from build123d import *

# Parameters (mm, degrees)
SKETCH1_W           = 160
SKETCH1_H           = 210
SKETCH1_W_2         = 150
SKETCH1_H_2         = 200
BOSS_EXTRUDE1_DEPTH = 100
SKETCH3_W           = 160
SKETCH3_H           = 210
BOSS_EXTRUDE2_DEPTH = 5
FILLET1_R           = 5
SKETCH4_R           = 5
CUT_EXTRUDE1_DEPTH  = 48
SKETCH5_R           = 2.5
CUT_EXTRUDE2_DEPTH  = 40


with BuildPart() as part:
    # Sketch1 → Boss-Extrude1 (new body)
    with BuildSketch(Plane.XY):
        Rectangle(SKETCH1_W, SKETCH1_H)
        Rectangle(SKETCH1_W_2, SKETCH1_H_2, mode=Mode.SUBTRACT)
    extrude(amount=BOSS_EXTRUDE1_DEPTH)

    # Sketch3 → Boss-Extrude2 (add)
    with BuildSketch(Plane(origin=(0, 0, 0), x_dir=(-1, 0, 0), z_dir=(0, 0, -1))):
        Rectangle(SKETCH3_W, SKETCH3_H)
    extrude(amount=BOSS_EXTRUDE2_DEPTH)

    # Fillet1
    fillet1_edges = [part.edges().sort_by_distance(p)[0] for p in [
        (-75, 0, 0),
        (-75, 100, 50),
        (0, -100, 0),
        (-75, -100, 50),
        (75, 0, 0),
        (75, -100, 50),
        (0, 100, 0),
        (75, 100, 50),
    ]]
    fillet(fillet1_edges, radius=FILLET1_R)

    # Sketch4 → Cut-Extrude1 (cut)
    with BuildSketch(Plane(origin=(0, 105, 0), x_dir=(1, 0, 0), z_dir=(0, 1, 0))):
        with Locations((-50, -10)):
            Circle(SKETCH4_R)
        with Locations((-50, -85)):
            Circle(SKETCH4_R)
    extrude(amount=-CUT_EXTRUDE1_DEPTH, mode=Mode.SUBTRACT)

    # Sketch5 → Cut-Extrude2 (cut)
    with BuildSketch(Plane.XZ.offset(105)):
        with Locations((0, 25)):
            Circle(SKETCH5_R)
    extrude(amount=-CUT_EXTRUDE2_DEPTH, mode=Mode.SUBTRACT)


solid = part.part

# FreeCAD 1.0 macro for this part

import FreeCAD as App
import Part
import Sketcher
from FreeCAD import Vector
Q = App.Units.Quantity


def edges_at(feature, points):
    """Names of the edges that pass closest to the given points."""
    edges = feature.Shape.Edges
    near = lambda p: min(range(len(edges)), key=lambda i: edges[i].distToShape(Part.Vertex(*p))[0])
    return sorted({f"Edge{near(p) + 1}" for p in points})


def add_polygon(sketch, points):
    """Adds a closed chain of lines whose ends are joined by coincident constraints."""
    first, n = sketch.GeometryCount, len(points)
    for a, b in zip(points, points[1:] + points[:1]):
        sketch.addGeometry(Part.LineSegment(App.Vector(*a, 0), App.Vector(*b, 0)), False)
    for i in range(n):
        sketch.addConstraint(Sketcher.Constraint("Coincident", first + i, 2, first + (i + 1) % n, 1))

doc = App.newDocument("Part")
body = doc.addObject("PartDesign::Body", "Body")

# Sketch on XY plane
sketch1 = body.newObject("Sketcher::SketchObject", "Sketch")
sketch1.AttachmentSupport = (doc.getObject("XY_Plane"), [""])
sketch1.MapMode = "FlatFace"
add_polygon(sketch1, [(-80, 105), (-80, -105), (80, -105), (80, 105)])  # lines 0-3
add_polygon(sketch1, [(75, -100), (-75, -100), (-75, 100), (75, 100)])  # lines 4-7
sketch1.addConstraint([
    Sketcher.Constraint("Vertical", 0),
    Sketcher.Constraint("Horizontal", 1),
    Sketcher.Constraint("Vertical", 2),
    Sketcher.Constraint("Horizontal", 3),
    Sketcher.Constraint("Horizontal", 4),
    Sketcher.Constraint("Vertical", 5),
    Sketcher.Constraint("Horizontal", 6),
    Sketcher.Constraint("Vertical", 7),
    Sketcher.Constraint("Symmetric", 0, 2, 2, 2, -1, 1),
    Sketcher.Constraint("Symmetric", 4, 2, 6, 2, -1, 1),
    Sketcher.Constraint("DistanceX", 1, 1, 1, 2, Q("160 mm")),
    Sketcher.Constraint("DistanceX", 4, 2, 4, 1, Q("150 mm")),
    Sketcher.Constraint("DistanceY", 0, 2, 0, 1, Q("210 mm")),
    Sketcher.Constraint("DistanceY", 5, 1, 5, 2, Q("200 mm")),
])
pad1 = body.newObject("PartDesign::Pad", "Pad")
pad1.Profile = sketch1
pad1.Length = 100

# Sketch on XY plane
sketch2 = body.newObject("Sketcher::SketchObject", "Sketch001")
sketch2.AttachmentSupport = (doc.getObject("XY_Plane"), [""])
sketch2.MapMode = "FlatFace"
add_polygon(sketch2, [(80, 105), (80, -105), (-80, -105), (-80, 105)])  # lines 0-3
sketch2.addConstraint([
    Sketcher.Constraint("Vertical", 0),
    Sketcher.Constraint("Horizontal", 1),
    Sketcher.Constraint("Vertical", 2),
    Sketcher.Constraint("Horizontal", 3),
    Sketcher.Constraint("Symmetric", 0, 2, 2, 2, -1, 1),
    Sketcher.Constraint("DistanceX", 1, 2, 1, 1, Q("160 mm")),
    Sketcher.Constraint("DistanceY", 0, 2, 0, 1, Q("210 mm")),
])
pad2 = body.newObject("PartDesign::Pad", "Pad001")
pad2.Profile = sketch2
pad2.Length = 5
pad2.Reversed = True
doc.recompute()

fillet = body.newObject("PartDesign::Fillet", "Fillet")
fillet.Base = (pad2, edges_at(pad2, [
    (-75, 0, 0),
    (-75, 100, 50),
    (0, -100, 0),
    (-75, -100, 50),
    (75, 0, 0),
    (75, -100, 50),
    (0, 100, 0),
    (75, 100, 50),
]))
fillet.Radius = 5

# Sketch on XZ plane
sketch3 = body.newObject("Sketcher::SketchObject", "Sketch002")
sketch3.AttachmentSupport = (doc.getObject("XZ_Plane"), [""])
sketch3.MapMode = "FlatFace"
sketch3.AttachmentOffset = App.Placement(Vector(0, 0, -105), App.Rotation())
sketch3.addGeometry([
    Part.Circle(Vector(-50, 10, 0), Vector(0, 0, 1), 5),
    Part.Circle(Vector(-50, 85, 0), Vector(0, 0, 1), 5),
], False)
sketch3.addConstraint([
    Sketcher.Constraint("Equal", 0, 1),
    Sketcher.Constraint("Vertical", 0, 3, 1, 3),
    Sketcher.Constraint("Diameter", 0, Q("10 mm")),
    Sketcher.Constraint("DistanceX", 0, 3, -1, 1, Q("50 mm")),
    Sketcher.Constraint("DistanceY", -1, 1, 0, 3, Q("10 mm")),
    Sketcher.Constraint("DistanceY", -1, 1, 1, 3, Q("85 mm")),
])
pocket1 = body.newObject("PartDesign::Pocket", "Pocket")
pocket1.Profile = sketch3
pocket1.Length = 48
pocket1.Reversed = True

# Sketch on XZ plane
sketch4 = body.newObject("Sketcher::SketchObject", "Sketch003")
sketch4.AttachmentSupport = (doc.getObject("XZ_Plane"), [""])
sketch4.MapMode = "FlatFace"
sketch4.AttachmentOffset = App.Placement(Vector(0, 0, 105), App.Rotation())
sketch4.addGeometry(Part.Circle(Vector(0, 25, 0), Vector(0, 0, 1), 2.5), False)
sketch4.addConstraint([
    Sketcher.Constraint("PointOnObject", 0, 3, -2),
    Sketcher.Constraint("Diameter", 0, Q("5 mm")),
    Sketcher.Constraint("DistanceY", -1, 1, 0, 3, Q("25 mm")),
])
pocket2 = body.newObject("PartDesign::Pocket", "Pocket001")
pocket2.Profile = sketch4
pocket2.Length = 40

doc.recompute()
